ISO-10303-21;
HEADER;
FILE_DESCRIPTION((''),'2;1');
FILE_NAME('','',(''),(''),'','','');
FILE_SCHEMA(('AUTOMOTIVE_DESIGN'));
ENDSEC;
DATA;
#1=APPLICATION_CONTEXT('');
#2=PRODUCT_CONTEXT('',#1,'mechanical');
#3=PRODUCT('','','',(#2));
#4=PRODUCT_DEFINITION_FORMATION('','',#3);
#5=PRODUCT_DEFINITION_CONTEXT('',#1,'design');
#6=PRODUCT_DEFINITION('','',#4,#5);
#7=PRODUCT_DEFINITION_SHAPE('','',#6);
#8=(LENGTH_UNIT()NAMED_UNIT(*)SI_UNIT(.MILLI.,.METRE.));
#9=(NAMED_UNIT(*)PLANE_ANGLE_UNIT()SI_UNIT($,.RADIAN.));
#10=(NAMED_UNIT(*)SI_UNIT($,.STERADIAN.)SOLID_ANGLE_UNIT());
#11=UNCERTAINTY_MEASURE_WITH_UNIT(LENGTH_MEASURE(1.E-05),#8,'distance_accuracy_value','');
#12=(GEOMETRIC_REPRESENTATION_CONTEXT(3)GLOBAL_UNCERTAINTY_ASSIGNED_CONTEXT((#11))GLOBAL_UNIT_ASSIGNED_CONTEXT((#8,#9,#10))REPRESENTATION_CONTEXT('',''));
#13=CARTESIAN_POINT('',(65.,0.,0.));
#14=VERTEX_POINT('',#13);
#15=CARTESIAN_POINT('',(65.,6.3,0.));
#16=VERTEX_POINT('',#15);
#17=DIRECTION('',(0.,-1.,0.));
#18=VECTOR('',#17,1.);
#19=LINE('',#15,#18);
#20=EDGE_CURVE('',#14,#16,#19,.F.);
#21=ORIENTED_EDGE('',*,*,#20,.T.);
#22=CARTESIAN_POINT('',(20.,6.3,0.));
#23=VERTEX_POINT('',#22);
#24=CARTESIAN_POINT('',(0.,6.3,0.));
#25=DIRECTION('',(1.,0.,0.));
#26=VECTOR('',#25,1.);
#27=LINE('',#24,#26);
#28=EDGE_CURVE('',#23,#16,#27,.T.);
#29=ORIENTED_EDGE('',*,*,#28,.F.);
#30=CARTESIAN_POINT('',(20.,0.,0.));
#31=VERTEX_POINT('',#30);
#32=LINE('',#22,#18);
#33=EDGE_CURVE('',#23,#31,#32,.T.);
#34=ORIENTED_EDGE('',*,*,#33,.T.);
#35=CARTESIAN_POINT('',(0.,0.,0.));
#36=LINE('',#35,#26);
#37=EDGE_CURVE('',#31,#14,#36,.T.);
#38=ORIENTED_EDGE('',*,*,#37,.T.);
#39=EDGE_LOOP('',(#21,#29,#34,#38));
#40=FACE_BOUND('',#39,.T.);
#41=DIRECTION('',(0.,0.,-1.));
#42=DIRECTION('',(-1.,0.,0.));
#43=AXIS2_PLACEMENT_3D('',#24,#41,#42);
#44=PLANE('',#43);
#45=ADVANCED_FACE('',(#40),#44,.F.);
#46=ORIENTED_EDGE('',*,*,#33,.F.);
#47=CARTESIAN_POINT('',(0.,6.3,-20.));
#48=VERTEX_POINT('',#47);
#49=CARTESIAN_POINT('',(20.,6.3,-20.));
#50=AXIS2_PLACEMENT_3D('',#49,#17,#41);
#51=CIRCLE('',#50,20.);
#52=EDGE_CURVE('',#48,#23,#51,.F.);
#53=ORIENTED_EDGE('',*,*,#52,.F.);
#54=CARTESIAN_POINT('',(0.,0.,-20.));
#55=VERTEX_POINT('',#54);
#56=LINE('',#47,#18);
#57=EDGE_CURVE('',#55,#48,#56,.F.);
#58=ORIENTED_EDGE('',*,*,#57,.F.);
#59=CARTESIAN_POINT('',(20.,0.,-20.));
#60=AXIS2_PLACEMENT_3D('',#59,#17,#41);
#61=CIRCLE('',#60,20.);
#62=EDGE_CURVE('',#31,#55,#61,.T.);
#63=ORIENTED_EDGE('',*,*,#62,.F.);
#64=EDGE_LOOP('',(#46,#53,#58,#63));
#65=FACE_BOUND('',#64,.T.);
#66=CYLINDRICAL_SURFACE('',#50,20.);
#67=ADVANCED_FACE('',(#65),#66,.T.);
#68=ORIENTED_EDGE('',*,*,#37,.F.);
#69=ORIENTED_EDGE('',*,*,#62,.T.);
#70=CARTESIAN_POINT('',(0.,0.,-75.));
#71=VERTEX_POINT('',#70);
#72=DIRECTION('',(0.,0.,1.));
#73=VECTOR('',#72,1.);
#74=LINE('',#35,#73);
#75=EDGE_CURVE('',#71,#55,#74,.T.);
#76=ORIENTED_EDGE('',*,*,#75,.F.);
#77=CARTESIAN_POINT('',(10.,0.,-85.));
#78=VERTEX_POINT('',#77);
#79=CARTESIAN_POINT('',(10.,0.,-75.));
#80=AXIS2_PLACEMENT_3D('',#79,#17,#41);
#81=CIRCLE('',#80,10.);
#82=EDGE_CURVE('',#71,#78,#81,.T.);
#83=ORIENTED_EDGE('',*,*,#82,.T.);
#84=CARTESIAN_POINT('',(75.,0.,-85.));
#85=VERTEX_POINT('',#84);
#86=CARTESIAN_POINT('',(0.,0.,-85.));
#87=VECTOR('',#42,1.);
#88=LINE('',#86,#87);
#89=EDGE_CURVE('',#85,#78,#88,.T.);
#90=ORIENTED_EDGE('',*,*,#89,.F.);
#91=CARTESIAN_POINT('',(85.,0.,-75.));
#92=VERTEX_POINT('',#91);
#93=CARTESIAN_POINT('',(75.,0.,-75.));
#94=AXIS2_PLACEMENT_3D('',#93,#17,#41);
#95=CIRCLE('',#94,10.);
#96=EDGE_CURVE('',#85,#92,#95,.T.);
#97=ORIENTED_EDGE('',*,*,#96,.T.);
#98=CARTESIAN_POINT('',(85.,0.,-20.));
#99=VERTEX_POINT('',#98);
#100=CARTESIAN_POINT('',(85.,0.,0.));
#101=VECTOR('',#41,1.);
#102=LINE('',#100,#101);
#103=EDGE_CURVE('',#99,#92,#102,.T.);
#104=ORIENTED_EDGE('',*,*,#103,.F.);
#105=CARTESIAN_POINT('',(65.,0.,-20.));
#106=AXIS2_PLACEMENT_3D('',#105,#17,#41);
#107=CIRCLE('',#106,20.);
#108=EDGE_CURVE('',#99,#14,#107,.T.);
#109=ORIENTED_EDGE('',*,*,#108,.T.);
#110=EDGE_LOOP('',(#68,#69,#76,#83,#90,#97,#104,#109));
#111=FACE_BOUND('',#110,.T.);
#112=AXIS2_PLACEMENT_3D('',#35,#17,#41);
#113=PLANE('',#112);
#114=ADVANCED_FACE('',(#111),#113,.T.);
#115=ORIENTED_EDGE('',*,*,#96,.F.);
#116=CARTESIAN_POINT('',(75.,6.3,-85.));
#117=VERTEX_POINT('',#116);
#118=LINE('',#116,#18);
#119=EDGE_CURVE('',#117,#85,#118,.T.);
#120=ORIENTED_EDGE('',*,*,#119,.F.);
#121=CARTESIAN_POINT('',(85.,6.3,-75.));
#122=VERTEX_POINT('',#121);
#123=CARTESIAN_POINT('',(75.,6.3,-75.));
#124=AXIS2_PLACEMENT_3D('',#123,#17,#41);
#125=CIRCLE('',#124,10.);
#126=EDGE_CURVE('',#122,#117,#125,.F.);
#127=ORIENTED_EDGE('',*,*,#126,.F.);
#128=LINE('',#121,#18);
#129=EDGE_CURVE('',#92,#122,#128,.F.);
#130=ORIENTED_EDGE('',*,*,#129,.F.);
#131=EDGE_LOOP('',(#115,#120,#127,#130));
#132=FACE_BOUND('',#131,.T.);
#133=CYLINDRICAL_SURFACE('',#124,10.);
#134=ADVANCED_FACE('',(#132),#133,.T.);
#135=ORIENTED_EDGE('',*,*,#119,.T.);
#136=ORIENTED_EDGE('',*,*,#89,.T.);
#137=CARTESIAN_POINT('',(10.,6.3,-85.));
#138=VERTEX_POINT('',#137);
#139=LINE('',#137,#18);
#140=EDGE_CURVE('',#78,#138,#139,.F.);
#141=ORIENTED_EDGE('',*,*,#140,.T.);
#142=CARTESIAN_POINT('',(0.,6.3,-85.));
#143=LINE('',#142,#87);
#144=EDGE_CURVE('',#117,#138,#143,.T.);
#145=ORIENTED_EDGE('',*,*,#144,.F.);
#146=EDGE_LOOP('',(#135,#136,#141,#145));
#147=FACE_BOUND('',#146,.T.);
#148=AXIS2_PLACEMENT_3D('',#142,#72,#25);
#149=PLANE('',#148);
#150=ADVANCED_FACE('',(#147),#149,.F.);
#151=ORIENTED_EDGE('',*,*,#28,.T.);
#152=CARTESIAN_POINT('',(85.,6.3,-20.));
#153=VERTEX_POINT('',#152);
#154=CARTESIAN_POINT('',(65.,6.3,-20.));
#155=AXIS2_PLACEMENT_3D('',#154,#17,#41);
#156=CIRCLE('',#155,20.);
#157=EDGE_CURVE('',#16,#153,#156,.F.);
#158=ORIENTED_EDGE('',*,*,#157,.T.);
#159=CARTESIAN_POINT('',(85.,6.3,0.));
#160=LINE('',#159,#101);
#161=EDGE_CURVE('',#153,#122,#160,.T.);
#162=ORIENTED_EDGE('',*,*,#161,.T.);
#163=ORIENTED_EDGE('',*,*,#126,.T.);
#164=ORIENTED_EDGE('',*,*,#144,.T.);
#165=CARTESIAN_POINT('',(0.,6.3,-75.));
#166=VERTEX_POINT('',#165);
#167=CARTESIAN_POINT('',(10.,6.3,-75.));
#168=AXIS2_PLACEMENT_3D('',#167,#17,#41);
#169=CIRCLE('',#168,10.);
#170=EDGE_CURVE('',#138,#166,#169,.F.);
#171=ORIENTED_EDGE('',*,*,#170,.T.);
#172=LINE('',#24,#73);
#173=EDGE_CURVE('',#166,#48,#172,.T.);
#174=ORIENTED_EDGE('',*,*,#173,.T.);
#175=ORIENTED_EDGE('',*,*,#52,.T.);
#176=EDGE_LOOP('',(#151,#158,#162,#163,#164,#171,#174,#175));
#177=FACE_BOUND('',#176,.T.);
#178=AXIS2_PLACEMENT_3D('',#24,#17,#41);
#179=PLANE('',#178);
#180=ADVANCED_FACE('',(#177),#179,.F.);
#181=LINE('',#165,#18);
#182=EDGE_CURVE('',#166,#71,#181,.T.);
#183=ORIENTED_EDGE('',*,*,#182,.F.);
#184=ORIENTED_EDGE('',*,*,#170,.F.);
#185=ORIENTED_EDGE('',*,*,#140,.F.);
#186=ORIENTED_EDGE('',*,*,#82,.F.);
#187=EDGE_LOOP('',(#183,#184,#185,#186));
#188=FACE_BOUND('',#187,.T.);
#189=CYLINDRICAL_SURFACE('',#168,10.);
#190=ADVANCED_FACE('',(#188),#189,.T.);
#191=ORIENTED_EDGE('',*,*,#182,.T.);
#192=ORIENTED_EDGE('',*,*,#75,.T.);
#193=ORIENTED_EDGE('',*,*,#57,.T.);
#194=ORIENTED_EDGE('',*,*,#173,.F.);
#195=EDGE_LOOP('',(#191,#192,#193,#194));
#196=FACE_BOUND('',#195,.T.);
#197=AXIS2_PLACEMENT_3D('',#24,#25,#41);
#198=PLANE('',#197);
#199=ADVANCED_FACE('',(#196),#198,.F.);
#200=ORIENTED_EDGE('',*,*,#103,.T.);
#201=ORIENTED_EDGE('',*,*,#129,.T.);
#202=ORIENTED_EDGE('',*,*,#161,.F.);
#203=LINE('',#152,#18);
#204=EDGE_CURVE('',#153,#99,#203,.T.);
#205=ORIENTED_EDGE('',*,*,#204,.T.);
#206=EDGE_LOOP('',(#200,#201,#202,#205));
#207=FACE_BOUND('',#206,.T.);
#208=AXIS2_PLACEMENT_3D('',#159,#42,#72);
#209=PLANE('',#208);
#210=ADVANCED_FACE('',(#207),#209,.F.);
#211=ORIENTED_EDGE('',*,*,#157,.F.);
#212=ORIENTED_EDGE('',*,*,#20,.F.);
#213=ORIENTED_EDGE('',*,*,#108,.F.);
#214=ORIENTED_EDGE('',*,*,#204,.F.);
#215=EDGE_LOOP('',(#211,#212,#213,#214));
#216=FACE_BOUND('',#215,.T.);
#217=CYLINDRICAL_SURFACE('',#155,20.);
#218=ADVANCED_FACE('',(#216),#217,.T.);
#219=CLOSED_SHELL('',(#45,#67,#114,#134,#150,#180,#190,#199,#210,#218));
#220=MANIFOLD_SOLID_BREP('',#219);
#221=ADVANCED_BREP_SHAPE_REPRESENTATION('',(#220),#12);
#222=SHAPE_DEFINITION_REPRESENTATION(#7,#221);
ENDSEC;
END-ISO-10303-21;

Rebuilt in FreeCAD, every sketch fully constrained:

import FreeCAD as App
import Part
import Sketcher


def edges_at(feature, points):
    """Names of the edges that pass closest to the given points."""
    edges = feature.Shape.Edges
    near = lambda p: min(range(len(edges)), key=lambda i: edges[i].distToShape(Part.Vertex(*p))[0])
    return sorted({f"Edge{near(p) + 1}" for p in points})


def add_polygon(sketch, points):
    """Adds a closed chain of lines whose ends are joined by coincident constraints."""
    first, n = sketch.GeometryCount, len(points)
    for a, b in zip(points, points[1:] + points[:1]):
        sketch.addGeometry(Part.LineSegment(App.Vector(*a, 0), App.Vector(*b, 0)), False)
    for i in range(n):
        sketch.addConstraint(Sketcher.Constraint("Coincident", first + i, 2, first + (i + 1) % n, 1))

doc = App.newDocument("Part")
body = doc.addObject("PartDesign::Body", "Body")

# Sketch on XZ plane
sketch1 = body.newObject("Sketcher::SketchObject", "Sketch")
sketch1.AttachmentSupport = (doc.getObject("XZ_Plane"), [""])
sketch1.MapMode = "FlatFace"
add_polygon(sketch1, [(0, -85), (0, 0), (85, 0), (85, -85)])  # lines 0-3
sketch1.addConstraint([
    Sketcher.Constraint("Vertical", 0),
    Sketcher.Constraint("Horizontal", 1),
    Sketcher.Constraint("Vertical", 2),
    Sketcher.Constraint("Horizontal", 3),
    Sketcher.Constraint("Coincident", 0, 2, -1, 1),
    Sketcher.Constraint("Equal", 3, 0),
    Sketcher.Constraint("DistanceX", 1, 1, 1, 2, 85.0),
])
pad1 = body.newObject("PartDesign::Pad", "Pad")
pad1.Profile = sketch1
pad1.Length = 6.3
pad1.Reversed = True
doc.recompute()

fillet = body.newObject("PartDesign::Fillet", "Fillet")
fillet.Base = (pad1, edges_at(pad1, [(0, 3.15, -85), (85, 3.15, -85)]))
fillet.Radius = 10
doc.recompute()

fillet2 = body.newObject("PartDesign::Fillet", "Fillet001")
fillet2.Base = (fillet, edges_at(fillet, [(85, 3.15, 0), (0, 3.15, 0)]))
fillet2.Radius = 20

doc.recompute()
